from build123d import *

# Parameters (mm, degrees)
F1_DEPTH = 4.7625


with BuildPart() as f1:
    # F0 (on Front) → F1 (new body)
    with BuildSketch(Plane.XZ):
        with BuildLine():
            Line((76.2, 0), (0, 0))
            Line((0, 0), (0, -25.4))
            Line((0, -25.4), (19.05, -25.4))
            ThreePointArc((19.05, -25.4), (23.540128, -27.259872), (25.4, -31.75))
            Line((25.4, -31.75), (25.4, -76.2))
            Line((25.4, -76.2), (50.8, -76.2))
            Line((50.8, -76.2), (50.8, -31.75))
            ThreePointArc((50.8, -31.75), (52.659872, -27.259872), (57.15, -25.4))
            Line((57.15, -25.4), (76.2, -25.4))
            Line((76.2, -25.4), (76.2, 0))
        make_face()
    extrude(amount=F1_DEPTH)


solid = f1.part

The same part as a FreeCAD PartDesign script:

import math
import FreeCAD as App
import Part
import Sketcher
from FreeCAD import Vector
Q = App.Units.Quantity

doc = App.newDocument("Part")
params = doc.addObject("Spreadsheet::Sheet", "Params")
for row, (alias, value) in enumerate([
    ("sketch1_width", "3 in"),
    ("sketch1_width2", "1 in"),
    ("sketch1_radius", "0.25 in"),
    ("pad1_length", "0.1875 in"),
], start=1):
    params.set(f"A{row}", alias)
    params.set(f"B{row}", "=" + value)
    params.setAlias(f"B{row}", alias)

body = doc.addObject("PartDesign::Body", "Body")

sketch1 = doc.addObject("Sketcher::SketchObject", "Sketch")
body.addObject(sketch1)
sketch1.AttachmentSupport = (doc.XZ_Plane, [""])
sketch1.MapMode = "FlatFace"
sketch1.addGeometry(Part.LineSegment(Vector(76.2, 0, 0), Vector(0, 0, 0)), False)
sketch1.addGeometry(Part.LineSegment(Vector(0, 0, 0), Vector(0, -25.4, 0)), False)
sketch1.addGeometry(Part.LineSegment(Vector(0, -25.4, 0), Vector(19.05, -25.4, 0)), False)
sketch1.addGeometry(Part.ArcOfCircle(Part.Circle(Vector(19.05, -31.75, 0), Vector(0, 0, 1), 6.35), math.radians(0.000002), math.radians(89.999998)), False)
sketch1.addGeometry(Part.LineSegment(Vector(25.4, -31.75, 0), Vector(25.4, -76.2, 0)), False)
sketch1.addGeometry(Part.LineSegment(Vector(25.4, -76.2, 0), Vector(50.8, -76.2, 0)), False)
sketch1.addGeometry(Part.LineSegment(Vector(50.8, -76.2, 0), Vector(50.8, -31.75, 0)), False)
sketch1.addGeometry(Part.ArcOfCircle(Part.Circle(Vector(57.15, -31.75, 0), Vector(0, 0, 1), 6.35), math.radians(90.000002), math.radians(179.999998)), False)
sketch1.addGeometry(Part.LineSegment(Vector(57.15, -25.4, 0), Vector(76.2, -25.4, 0)), False)
sketch1.addGeometry(Part.LineSegment(Vector(76.2, -25.4, 0), Vector(76.2, 0, 0)), False)
sketch1.addConstraint(Sketcher.Constraint("Coincident", 0, 2, 1, 1))
sketch1.addConstraint(Sketcher.Constraint("Coincident", 1, 2, 2, 1))
sketch1.addConstraint(Sketcher.Constraint("Tangent", 2, 2, 3, 2))
sketch1.addConstraint(Sketcher.Constraint("Tangent", 3, 1, 4, 1))
sketch1.addConstraint(Sketcher.Constraint("Coincident", 4, 2, 5, 1))
sketch1.addConstraint(Sketcher.Constraint("Coincident", 5, 2, 6, 1))
sketch1.addConstraint(Sketcher.Constraint("Tangent", 6, 2, 7, 2))
sketch1.addConstraint(Sketcher.Constraint("Tangent", 7, 1, 8, 1))
sketch1.addConstraint(Sketcher.Constraint("Coincident", 8, 2, 9, 1))
sketch1.addConstraint(Sketcher.Constraint("Coincident", 9, 2, 0, 1))
sketch1.addConstraint(Sketcher.Constraint("Horizontal", 0))
sketch1.addConstraint(Sketcher.Constraint("Vertical", 1))
sketch1.addConstraint(Sketcher.Constraint("Horizontal", 2))
sketch1.addConstraint(Sketcher.Constraint("Vertical", 4))
sketch1.addConstraint(Sketcher.Constraint("Horizontal", 5))
sketch1.addConstraint(Sketcher.Constraint("Vertical", 6))
sketch1.addConstraint(Sketcher.Constraint("Horizontal", 8))
sketch1.addConstraint(Sketcher.Constraint("Vertical", 9))
sketch1.addConstraint(Sketcher.Constraint("Coincident", 0, 2, -1, 1))
sketch1.addConstraint(Sketcher.Constraint("Equal", 3, 7))
sketch1.addConstraint(Sketcher.Constraint("Horizontal", 3, 3, 7, 3))
sketch1.addConstraint(Sketcher.Constraint("Equal", 2, 8))
sketch1.addConstraint(Sketcher.Constraint("Equal", 5, 1))
sketch1.addConstraint(Sketcher.Constraint("DistanceX", 0, 2, 0, 1, Q("3 in")))
sketch1.addConstraint(Sketcher.Constraint("DistanceX", 5, 1, 5, 2, Q("1 in")))
sketch1.addConstraint(Sketcher.Constraint("Radius", 3, Q("0.25 in")))
sketch1.addConstraint(Sketcher.Constraint("DistanceY", 4, 2, -1, 1, Q("3 in")))
sketch1.setExpression("Constraints[23]", "Params.sketch1_width")
sketch1.setExpression("Constraints[24]", "Params.sketch1_width2")
sketch1.setExpression("Constraints[25]", "Params.sketch1_radius")
pad1 = doc.addObject("PartDesign::Pad", "Pad")
body.addObject(pad1)
pad1.Profile = sketch1
pad1.setExpression("Length", "Params.pad1_length")

doc.recompute()
